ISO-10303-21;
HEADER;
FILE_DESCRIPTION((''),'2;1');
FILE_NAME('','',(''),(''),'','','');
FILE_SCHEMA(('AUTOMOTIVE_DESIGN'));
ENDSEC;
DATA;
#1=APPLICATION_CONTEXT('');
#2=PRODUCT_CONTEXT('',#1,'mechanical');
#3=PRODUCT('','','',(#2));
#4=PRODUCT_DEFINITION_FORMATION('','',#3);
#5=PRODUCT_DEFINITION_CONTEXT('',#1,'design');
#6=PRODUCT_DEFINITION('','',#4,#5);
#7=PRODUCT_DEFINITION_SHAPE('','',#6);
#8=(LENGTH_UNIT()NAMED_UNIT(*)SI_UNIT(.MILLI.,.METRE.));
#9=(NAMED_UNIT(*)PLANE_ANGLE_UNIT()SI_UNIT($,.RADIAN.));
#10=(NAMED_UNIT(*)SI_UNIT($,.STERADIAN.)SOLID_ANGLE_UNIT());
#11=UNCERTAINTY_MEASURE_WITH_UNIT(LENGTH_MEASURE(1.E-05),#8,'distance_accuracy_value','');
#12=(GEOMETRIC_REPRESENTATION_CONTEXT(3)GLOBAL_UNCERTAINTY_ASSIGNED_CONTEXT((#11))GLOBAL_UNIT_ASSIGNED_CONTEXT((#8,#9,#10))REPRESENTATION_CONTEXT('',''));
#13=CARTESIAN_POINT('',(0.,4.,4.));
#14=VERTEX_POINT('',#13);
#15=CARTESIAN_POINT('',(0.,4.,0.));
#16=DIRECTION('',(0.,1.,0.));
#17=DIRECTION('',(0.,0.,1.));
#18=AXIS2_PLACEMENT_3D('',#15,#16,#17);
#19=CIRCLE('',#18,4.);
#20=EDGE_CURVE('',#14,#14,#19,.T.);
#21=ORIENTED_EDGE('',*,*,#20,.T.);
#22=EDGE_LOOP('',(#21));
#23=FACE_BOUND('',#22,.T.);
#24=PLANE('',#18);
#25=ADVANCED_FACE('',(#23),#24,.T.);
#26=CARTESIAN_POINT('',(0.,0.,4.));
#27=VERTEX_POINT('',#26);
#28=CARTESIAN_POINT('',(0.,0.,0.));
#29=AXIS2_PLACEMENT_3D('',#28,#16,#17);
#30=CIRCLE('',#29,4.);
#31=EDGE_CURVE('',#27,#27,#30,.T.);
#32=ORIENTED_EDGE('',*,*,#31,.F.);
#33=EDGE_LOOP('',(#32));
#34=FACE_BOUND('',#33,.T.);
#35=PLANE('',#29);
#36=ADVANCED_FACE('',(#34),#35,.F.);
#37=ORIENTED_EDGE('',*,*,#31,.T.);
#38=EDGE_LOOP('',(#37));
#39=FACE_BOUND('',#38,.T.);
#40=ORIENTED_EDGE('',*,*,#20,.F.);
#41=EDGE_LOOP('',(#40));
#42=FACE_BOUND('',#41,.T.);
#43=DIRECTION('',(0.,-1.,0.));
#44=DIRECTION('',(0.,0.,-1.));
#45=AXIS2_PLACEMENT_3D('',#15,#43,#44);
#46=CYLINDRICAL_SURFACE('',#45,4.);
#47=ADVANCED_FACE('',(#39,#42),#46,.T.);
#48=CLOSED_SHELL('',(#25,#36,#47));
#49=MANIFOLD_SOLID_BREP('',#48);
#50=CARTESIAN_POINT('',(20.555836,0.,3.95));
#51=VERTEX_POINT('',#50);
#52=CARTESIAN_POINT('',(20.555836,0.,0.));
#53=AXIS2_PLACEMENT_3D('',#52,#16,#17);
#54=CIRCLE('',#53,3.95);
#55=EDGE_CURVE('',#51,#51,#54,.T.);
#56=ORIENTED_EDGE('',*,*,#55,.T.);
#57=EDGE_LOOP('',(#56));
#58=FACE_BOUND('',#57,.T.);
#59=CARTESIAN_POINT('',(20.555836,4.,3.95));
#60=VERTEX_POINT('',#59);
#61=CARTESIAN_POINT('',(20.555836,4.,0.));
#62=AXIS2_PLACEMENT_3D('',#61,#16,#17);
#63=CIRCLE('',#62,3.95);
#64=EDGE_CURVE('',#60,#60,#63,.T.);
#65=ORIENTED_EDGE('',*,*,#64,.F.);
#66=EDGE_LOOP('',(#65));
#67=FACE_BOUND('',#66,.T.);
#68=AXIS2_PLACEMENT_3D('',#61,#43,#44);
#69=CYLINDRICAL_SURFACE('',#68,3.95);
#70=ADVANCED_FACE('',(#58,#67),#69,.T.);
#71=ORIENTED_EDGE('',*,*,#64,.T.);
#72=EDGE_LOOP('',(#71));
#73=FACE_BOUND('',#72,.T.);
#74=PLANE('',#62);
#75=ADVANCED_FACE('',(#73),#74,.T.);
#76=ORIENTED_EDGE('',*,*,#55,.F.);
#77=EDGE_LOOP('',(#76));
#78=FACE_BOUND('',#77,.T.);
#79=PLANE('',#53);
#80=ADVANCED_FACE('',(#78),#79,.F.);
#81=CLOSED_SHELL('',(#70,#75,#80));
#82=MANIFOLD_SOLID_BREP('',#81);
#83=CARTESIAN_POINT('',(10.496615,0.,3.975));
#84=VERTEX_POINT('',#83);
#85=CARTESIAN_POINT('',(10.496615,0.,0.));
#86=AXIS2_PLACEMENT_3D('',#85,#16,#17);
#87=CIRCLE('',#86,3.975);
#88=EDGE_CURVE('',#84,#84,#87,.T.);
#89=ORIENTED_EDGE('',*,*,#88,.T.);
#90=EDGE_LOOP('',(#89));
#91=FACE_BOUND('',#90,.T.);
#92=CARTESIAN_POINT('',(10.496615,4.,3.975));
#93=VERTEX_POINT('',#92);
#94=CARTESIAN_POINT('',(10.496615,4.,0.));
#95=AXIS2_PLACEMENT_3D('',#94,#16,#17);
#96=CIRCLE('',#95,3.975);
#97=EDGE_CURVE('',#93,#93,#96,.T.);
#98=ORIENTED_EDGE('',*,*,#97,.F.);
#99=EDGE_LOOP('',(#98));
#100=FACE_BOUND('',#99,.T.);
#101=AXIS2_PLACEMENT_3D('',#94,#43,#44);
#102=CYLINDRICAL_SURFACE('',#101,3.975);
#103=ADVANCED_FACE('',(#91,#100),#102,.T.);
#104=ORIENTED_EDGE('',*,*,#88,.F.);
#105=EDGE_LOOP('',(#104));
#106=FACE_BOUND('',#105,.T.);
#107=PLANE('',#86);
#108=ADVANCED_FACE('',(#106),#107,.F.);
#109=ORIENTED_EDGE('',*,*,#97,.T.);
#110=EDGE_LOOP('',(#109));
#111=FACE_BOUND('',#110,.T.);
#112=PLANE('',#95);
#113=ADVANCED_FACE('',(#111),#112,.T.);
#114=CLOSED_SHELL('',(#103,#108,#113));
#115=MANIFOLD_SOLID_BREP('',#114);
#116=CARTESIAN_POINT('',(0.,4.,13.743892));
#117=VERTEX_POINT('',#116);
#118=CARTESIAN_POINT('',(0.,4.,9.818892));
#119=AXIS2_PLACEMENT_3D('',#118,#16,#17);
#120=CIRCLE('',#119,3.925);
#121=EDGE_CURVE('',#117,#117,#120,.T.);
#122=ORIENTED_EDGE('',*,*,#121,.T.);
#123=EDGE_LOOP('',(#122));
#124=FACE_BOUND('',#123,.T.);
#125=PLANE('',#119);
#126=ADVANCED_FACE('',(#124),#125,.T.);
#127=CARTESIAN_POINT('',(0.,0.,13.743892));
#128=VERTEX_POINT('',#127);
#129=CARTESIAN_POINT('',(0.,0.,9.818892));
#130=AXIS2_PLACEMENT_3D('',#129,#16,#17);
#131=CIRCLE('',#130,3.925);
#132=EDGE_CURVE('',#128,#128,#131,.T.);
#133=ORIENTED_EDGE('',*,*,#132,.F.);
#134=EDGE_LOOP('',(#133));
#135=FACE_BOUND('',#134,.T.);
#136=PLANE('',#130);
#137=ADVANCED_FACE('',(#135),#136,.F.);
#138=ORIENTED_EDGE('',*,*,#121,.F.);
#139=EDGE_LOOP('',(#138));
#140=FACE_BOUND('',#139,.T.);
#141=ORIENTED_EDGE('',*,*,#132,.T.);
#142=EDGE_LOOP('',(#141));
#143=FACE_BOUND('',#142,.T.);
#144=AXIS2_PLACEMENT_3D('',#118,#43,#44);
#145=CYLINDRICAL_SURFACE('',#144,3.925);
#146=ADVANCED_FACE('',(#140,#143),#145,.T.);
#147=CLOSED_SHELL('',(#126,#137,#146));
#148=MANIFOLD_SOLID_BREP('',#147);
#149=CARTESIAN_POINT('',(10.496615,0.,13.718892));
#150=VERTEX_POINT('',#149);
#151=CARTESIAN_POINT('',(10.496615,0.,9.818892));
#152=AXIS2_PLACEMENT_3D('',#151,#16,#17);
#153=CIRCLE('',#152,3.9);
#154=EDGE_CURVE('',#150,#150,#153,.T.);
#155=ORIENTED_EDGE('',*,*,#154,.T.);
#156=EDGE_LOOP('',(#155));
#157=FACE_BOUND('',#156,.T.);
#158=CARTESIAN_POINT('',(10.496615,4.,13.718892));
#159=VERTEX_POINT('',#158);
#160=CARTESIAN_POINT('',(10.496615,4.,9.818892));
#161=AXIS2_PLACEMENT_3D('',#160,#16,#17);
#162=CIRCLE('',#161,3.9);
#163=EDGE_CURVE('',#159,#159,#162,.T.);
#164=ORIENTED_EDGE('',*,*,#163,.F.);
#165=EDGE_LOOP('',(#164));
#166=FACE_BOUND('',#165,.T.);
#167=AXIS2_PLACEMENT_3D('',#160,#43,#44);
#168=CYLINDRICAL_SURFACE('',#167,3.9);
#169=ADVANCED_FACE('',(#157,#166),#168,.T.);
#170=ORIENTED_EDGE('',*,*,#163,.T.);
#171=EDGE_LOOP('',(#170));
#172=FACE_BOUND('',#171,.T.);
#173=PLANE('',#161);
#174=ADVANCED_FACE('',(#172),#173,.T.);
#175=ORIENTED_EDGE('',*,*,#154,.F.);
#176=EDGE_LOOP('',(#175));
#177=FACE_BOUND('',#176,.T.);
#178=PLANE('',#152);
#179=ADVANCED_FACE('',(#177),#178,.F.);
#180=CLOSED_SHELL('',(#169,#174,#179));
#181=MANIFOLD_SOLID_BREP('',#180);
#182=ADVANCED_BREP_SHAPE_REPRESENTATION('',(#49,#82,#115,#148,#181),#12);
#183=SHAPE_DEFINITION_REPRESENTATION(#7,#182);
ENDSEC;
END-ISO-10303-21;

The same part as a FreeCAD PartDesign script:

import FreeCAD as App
import Part
import Sketcher

doc = App.newDocument("Part")
body = doc.addObject("PartDesign::Body", "Body")

# Sketch on XZ plane
sketch1 = body.newObject("Sketcher::SketchObject", "Sketch")
sketch1.AttachmentSupport = (doc.getObject("XZ_Plane"), [""])
sketch1.MapMode = "FlatFace"
sketch1.addGeometry(Part.Circle(App.Vector(0, 0, 0), App.Vector(0, 0, 1), 4), False)
sketch1.addConstraint([
    Sketcher.Constraint("Coincident", 0, 3, -1, 1),
    Sketcher.Constraint("Diameter", 0, 8.0),
])
pad1 = body.newObject("PartDesign::Pad", "Pad")
pad1.Profile = sketch1
pad1.Length = 4
pad1.Reversed = True
body2 = doc.addObject("PartDesign::Body", "Body001")

# Sketch on XZ plane
sketch2 = body2.newObject("Sketcher::SketchObject", "Sketch001")
sketch2.AttachmentSupport = (doc.getObject("XZ_Plane001"), [""])
sketch2.MapMode = "FlatFace"
sketch2.addGeometry(Part.Circle(App.Vector(10.496615, 0, 0), App.Vector(0, 0, 1), 3.975), False)
sketch2.addConstraint([
    Sketcher.Constraint("PointOnObject", 0, 3, -1),
    Sketcher.Constraint("Diameter", 0, 7.95),
    Sketcher.Constraint("DistanceX", -1, 1, 0, 3, 10.496615),
])
pad2 = body2.newObject("PartDesign::Pad", "Pad001")
pad2.Profile = sketch2
pad2.Length = 4
pad2.Reversed = True
body3 = doc.addObject("PartDesign::Body", "Body002")

# Sketch on XZ plane
sketch3 = body3.newObject("Sketcher::SketchObject", "Sketch002")
sketch3.AttachmentSupport = (doc.getObject("XZ_Plane002"), [""])
sketch3.MapMode = "FlatFace"
sketch3.addGeometry(Part.Circle(App.Vector(20.555836, 0, 0), App.Vector(0, 0, 1), 3.95), False)
sketch3.addConstraint([
    Sketcher.Constraint("PointOnObject", 0, 3, -1),
    Sketcher.Constraint("Diameter", 0, 7.9),
    Sketcher.Constraint("DistanceX", -1, 1, 0, 3, 20.555836),
])
pad3 = body3.newObject("PartDesign::Pad", "Pad002")
pad3.Profile = sketch3
pad3.Length = 4
pad3.Reversed = True
body4 = doc.addObject("PartDesign::Body", "Body003")

# Sketch on XZ plane
sketch4 = body4.newObject("Sketcher::SketchObject", "Sketch003")
sketch4.AttachmentSupport = (doc.getObject("XZ_Plane003"), [""])
sketch4.MapMode = "FlatFace"
sketch4.addGeometry(Part.Circle(App.Vector(0, 9.818892, 0), App.Vector(0, 0, 1), 3.925), False)
sketch4.addConstraint([
    Sketcher.Constraint("PointOnObject", 0, 3, -2),
    Sketcher.Constraint("Diameter", 0, 7.85),
    Sketcher.Constraint("DistanceY", -1, 1, 0, 3, 9.818892),
])
pad4 = body4.newObject("PartDesign::Pad", "Pad003")
pad4.Profile = sketch4
pad4.Length = 4
pad4.Reversed = True
body5 = doc.addObject("PartDesign::Body", "Body004")

# Sketch on XZ plane
sketch5 = body5.newObject("Sketcher::SketchObject", "Sketch004")
sketch5.AttachmentSupport = (doc.getObject("XZ_Plane004"), [""])
sketch5.MapMode = "FlatFace"
sketch5.addGeometry(Part.Circle(App.Vector(10.496615, 9.818892, 0), App.Vector(0, 0, 1), 3.9), False)
sketch5.addConstraint([
    Sketcher.Constraint("Diameter", 0, 7.8),
    Sketcher.Constraint("DistanceX", -1, 1, 0, 3, 10.496615),
    Sketcher.Constraint("DistanceY", -1, 1, 0, 3, 9.818892),
])
pad5 = body5.newObject("PartDesign::Pad", "Pad004")
pad5.Profile = sketch5
pad5.Length = 4
pad5.Reversed = True

doc.recompute()
